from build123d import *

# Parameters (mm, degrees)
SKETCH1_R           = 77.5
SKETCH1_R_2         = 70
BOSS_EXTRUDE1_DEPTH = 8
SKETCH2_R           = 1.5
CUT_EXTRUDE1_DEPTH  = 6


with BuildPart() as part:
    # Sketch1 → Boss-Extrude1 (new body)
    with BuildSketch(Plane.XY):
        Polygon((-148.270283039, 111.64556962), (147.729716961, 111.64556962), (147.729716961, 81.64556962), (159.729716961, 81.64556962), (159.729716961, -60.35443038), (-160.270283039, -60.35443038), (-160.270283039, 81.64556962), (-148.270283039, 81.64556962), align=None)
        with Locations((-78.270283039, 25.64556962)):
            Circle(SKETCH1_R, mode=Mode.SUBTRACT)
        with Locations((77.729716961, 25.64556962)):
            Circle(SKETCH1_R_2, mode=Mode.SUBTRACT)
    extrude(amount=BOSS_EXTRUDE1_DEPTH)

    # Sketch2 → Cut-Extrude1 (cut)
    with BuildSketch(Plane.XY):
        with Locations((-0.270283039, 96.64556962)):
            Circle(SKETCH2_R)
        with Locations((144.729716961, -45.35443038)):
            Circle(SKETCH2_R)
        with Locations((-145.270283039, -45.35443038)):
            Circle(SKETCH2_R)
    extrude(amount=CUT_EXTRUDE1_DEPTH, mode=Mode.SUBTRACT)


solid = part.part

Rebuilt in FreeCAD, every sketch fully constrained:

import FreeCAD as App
import Part
import Sketcher


def add_polygon(sketch, points):
    """Adds a closed chain of lines whose ends are joined by coincident constraints."""
    first, n = sketch.GeometryCount, len(points)
    for a, b in zip(points, points[1:] + points[:1]):
        sketch.addGeometry(Part.LineSegment(App.Vector(*a, 0), App.Vector(*b, 0)), False)
    for i in range(n):
        sketch.addConstraint(Sketcher.Constraint("Coincident", first + i, 2, first + (i + 1) % n, 1))

doc = App.newDocument("Part")
body = doc.addObject("PartDesign::Body", "Body")

sketch1 = body.newObject("Sketcher::SketchObject", "Sketch")
sketch1.AttachmentSupport = (doc.getObject("XY_Plane"), [""])
sketch1.MapMode = "FlatFace"
add_polygon(sketch1, [(148, 112), (-148, 112), (-148, 82), (-160, 82), (-160, -60), (160, -60), (160, 82), (148, 82)])
sketch1.addGeometry(Part.Circle(App.Vector(78, 26, 0), App.Vector(0, 0, 1), 70), False)
sketch1.addGeometry(Part.Circle(App.Vector(-78, 26, 0), App.Vector(0, 0, 1), 78), False)
sketch1.addConstraint(Sketcher.Constraint("Horizontal", 0))
sketch1.addConstraint(Sketcher.Constraint("Vertical", 1))
sketch1.addConstraint(Sketcher.Constraint("Horizontal", 2))
sketch1.addConstraint(Sketcher.Constraint("Vertical", 3))
sketch1.addConstraint(Sketcher.Constraint("Horizontal", 4))
sketch1.addConstraint(Sketcher.Constraint("Vertical", 5))
sketch1.addConstraint(Sketcher.Constraint("Horizontal", 6))
sketch1.addConstraint(Sketcher.Constraint("Vertical", 7))
sketch1.addConstraint(Sketcher.Constraint("Horizontal", 8, 3, 9, 3))
sketch1.addConstraint(Sketcher.Constraint("Horizontal", 2, 2, 5, 2))
sketch1.addConstraint(Sketcher.Constraint("Equal", 2, 6))
sketch1.addConstraint(Sketcher.Constraint("Diameter", 8, 140.0))
sketch1.addConstraint(Sketcher.Constraint("Diameter", 9, 155.0))
sketch1.addConstraint(Sketcher.Constraint("DistanceX", 0, 2, 0, 1, 296.0))
sketch1.addConstraint(Sketcher.Constraint("DistanceX", 2, 2, 2, 1, 12.0))
sketch1.addConstraint(Sketcher.Constraint("DistanceY", 1, 2, 1, 1, 30.0))
sketch1.addConstraint(Sketcher.Constraint("DistanceY", 3, 2, 3, 1, 142.0))
sketch1.addConstraint(Sketcher.Constraint("DistanceX", 9, 3, 8, 3, 156.0))
sketch1.addConstraint(Sketcher.Constraint("DistanceX", 0, 2, 9, 3, 70.0))
sketch1.addConstraint(Sketcher.Constraint("DistanceY", 9, 3, 0, 2, 86.0))
sketch1.addConstraint(Sketcher.Constraint("DistanceY", -1, 1, 8, 3, 25.64557))
sketch1.addConstraint(Sketcher.Constraint("DistanceX", -1, 1, 8, 3, 77.729717))
pad1 = body.newObject("PartDesign::Pad", "Pad")
pad1.Profile = sketch1
pad1.Length = 8

sketch2 = body.newObject("Sketcher::SketchObject", "Sketch001")
sketch2.AttachmentSupport = (doc.getObject("XY_Plane"), [""])
sketch2.MapMode = "FlatFace"
sketch2.addGeometry(Part.Circle(App.Vector(-0.3, 96.6, 0), App.Vector(0, 0, 1), 1.5), False)
sketch2.addGeometry(Part.Circle(App.Vector(144.7, -45.4, 0), App.Vector(0, 0, 1), 1.5), False)
sketch2.addGeometry(Part.Circle(App.Vector(-145.3, -45.4, 0), App.Vector(0, 0, 1), 1.5), False)
sketch2.addConstraint(Sketcher.Constraint("Equal", 0, 1))
sketch2.addConstraint(Sketcher.Constraint("Equal", 1, 2))
sketch2.addConstraint(Sketcher.Constraint("Horizontal", 1, 3, 2, 3))
sketch2.addConstraint(Sketcher.Constraint("Diameter", 0, 3.0))
sketch2.addConstraint(Sketcher.Constraint("DistanceX", 0, 3, 1, 3, 145.0))
sketch2.addConstraint(Sketcher.Constraint("DistanceY", 1, 3, 0, 3, 142.0))
sketch2.addConstraint(Sketcher.Constraint("DistanceX", 2, 3, 0, 3, 145.0))
sketch2.addConstraint(Sketcher.Constraint("DistanceY", -1, 1, 0, 3, 96.64557))
sketch2.addConstraint(Sketcher.Constraint("DistanceX", 0, 3, -1, 1, 0.270283))
pocket1 = body.newObject("PartDesign::Pocket", "Pocket")
pocket1.Profile = sketch2
pocket1.Length = 6
pocket1.Reversed = True

doc.recompute()
